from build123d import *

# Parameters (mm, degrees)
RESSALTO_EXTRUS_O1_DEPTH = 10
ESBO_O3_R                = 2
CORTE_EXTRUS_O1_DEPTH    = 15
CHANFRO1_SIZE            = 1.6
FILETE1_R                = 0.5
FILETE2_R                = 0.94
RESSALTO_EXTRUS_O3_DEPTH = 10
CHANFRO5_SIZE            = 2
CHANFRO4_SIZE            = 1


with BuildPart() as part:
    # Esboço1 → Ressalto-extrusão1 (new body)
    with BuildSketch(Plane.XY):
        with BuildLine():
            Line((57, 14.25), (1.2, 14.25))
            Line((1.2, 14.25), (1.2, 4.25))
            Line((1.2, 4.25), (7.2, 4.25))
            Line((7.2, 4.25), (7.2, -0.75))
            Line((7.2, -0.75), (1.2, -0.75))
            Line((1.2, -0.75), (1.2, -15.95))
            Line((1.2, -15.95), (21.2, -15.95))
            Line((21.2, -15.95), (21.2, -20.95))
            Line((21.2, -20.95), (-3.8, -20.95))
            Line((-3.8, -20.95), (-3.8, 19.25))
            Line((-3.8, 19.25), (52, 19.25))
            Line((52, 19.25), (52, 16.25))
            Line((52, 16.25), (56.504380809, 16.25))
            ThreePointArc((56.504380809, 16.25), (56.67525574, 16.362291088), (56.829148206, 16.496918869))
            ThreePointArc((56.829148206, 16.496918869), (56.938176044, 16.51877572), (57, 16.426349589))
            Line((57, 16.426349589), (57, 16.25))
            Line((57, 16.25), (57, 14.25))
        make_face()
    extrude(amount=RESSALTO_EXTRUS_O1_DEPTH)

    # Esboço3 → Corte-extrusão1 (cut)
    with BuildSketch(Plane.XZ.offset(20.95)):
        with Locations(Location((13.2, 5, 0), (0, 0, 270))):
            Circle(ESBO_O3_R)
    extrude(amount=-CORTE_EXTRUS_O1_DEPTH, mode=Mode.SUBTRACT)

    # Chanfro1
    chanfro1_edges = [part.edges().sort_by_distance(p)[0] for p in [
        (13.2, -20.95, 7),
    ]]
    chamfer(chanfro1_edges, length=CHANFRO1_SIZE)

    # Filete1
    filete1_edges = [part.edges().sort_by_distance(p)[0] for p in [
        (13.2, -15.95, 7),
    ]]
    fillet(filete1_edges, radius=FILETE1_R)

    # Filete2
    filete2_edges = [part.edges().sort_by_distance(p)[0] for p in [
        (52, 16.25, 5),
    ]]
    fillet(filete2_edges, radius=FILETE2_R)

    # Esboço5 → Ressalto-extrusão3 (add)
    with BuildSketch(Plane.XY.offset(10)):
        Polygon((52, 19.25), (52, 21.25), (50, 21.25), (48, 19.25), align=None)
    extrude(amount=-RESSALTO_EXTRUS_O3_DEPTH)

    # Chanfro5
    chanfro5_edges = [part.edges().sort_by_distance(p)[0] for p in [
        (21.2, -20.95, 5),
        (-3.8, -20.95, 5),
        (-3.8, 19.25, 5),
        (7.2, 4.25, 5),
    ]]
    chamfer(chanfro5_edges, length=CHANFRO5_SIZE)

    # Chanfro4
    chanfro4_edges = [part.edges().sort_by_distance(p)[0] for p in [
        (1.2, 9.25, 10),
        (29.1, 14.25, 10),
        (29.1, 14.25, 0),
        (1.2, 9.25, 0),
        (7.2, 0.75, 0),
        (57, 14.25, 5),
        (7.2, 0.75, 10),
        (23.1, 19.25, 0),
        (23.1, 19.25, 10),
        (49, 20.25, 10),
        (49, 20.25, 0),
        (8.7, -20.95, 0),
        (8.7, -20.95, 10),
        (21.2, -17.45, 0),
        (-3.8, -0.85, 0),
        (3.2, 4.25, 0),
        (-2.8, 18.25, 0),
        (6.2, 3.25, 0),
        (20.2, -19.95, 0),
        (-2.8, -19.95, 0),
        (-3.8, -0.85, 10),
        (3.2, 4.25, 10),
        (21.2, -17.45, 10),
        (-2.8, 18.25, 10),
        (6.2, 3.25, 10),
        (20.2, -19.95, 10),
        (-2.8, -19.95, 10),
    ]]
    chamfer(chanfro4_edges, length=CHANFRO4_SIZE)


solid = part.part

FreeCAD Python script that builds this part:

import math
import FreeCAD as App
import Part
import Sketcher
Q = App.Units.Quantity


def edges_at(feature, points):
    """Names of the edges that pass closest to the given points."""
    edges = feature.Shape.Edges
    near = lambda p: min(range(len(edges)), key=lambda i: edges[i].distToShape(Part.Vertex(*p))[0])
    return sorted({f"Edge{near(p) + 1}" for p in points})


def add_polygon(sketch, points):
    """Adds a closed chain of lines whose ends are joined by coincident constraints."""
    first, n = sketch.GeometryCount, len(points)
    for a, b in zip(points, points[1:] + points[:1]):
        sketch.addGeometry(Part.LineSegment(App.Vector(*a, 0), App.Vector(*b, 0)), False)
    for i in range(n):
        sketch.addConstraint(Sketcher.Constraint("Coincident", first + i, 2, first + (i + 1) % n, 1))

doc = App.newDocument("Part")
body = doc.addObject("PartDesign::Body", "Body")

# Sketch on XY plane
sketch1 = body.newObject("Sketcher::SketchObject", "Sketch")
sketch1.AttachmentSupport = (doc.getObject("XY_Plane"), [""])
sketch1.MapMode = "FlatFace"
sketch1.addGeometry(Part.LineSegment(App.Vector(1.2, 14.25, 0), App.Vector(57, 14.25, 0)), False)
sketch1.addGeometry(Part.LineSegment(App.Vector(57, 14.25, 0), App.Vector(57, 16.43, 0)), False)
sketch1.addGeometry(Part.ArcOfCircle(Part.Circle(App.Vector(56.9, 16.43, 0), App.Vector(0, 0, 1), 0.1), math.radians(0), math.radians(135)), False)
sketch1.addGeometry(Part.ArcOfCircle(Part.Circle(App.Vector(55.77, 17.55, 0), App.Vector(0, 0, 1), 1.49), math.radians(-60.62), math.radians(-44.89)), False)
sketch1.addGeometry(Part.LineSegment(App.Vector(56.5, 16.25, 0), App.Vector(52, 16.25, 0)), False)
sketch1.addGeometry(Part.LineSegment(App.Vector(52, 16.25, 0), App.Vector(52, 19.25, 0)), False)
sketch1.addGeometry(Part.LineSegment(App.Vector(52, 19.25, 0), App.Vector(-3.8, 19.25, 0)), False)
sketch1.addGeometry(Part.LineSegment(App.Vector(-3.8, 19.25, 0), App.Vector(-3.8, -20.95, 0)), False)
sketch1.addGeometry(Part.LineSegment(App.Vector(-3.8, -20.95, 0), App.Vector(21.2, -20.95, 0)), False)
sketch1.addGeometry(Part.LineSegment(App.Vector(21.2, -20.95, 0), App.Vector(21.2, -15.95, 0)), False)
sketch1.addGeometry(Part.LineSegment(App.Vector(21.2, -15.95, 0), App.Vector(1.2, -15.95, 0)), False)
sketch1.addGeometry(Part.LineSegment(App.Vector(1.2, -15.95, 0), App.Vector(1.2, -0.75, 0)), False)
sketch1.addGeometry(Part.LineSegment(App.Vector(1.2, -0.75, 0), App.Vector(7.2, -0.75, 0)), False)
sketch1.addGeometry(Part.LineSegment(App.Vector(7.2, -0.75, 0), App.Vector(7.2, 4.25, 0)), False)
sketch1.addGeometry(Part.LineSegment(App.Vector(7.2, 4.25, 0), App.Vector(1.2, 4.25, 0)), False)
sketch1.addGeometry(Part.LineSegment(App.Vector(1.2, 4.25, 0), App.Vector(1.2, 14.25, 0)), False)
sketch1.addConstraint(Sketcher.Constraint("Coincident", 0, 2, 1, 1))
sketch1.addConstraint(Sketcher.Constraint("Tangent", 1, 2, 2, 1))
sketch1.addConstraint(Sketcher.Constraint("Tangent", 2, 2, 3, 2))
sketch1.addConstraint(Sketcher.Constraint("Coincident", 3, 1, 4, 1))
sketch1.addConstraint(Sketcher.Constraint("Coincident", 4, 2, 5, 1))
sketch1.addConstraint(Sketcher.Constraint("Coincident", 5, 2, 6, 1))
sketch1.addConstraint(Sketcher.Constraint("Coincident", 6, 2, 7, 1))
sketch1.addConstraint(Sketcher.Constraint("Coincident", 7, 2, 8, 1))
sketch1.addConstraint(Sketcher.Constraint("Coincident", 8, 2, 9, 1))
sketch1.addConstraint(Sketcher.Constraint("Coincident", 9, 2, 10, 1))
sketch1.addConstraint(Sketcher.Constraint("Coincident", 10, 2, 11, 1))
sketch1.addConstraint(Sketcher.Constraint("Coincident", 11, 2, 12, 1))
sketch1.addConstraint(Sketcher.Constraint("Coincident", 12, 2, 13, 1))
sketch1.addConstraint(Sketcher.Constraint("Coincident", 13, 2, 14, 1))
sketch1.addConstraint(Sketcher.Constraint("Coincident", 14, 2, 15, 1))
sketch1.addConstraint(Sketcher.Constraint("Coincident", 15, 2, 0, 1))
sketch1.addConstraint(Sketcher.Constraint("Horizontal", 0))
sketch1.addConstraint(Sketcher.Constraint("Vertical", 1))
sketch1.addConstraint(Sketcher.Constraint("Horizontal", 4))
sketch1.addConstraint(Sketcher.Constraint("Vertical", 5))
sketch1.addConstraint(Sketcher.Constraint("Horizontal", 6))
sketch1.addConstraint(Sketcher.Constraint("Vertical", 7))
sketch1.addConstraint(Sketcher.Constraint("Horizontal", 8))
sketch1.addConstraint(Sketcher.Constraint("Vertical", 9))
sketch1.addConstraint(Sketcher.Constraint("Horizontal", 10))
sketch1.addConstraint(Sketcher.Constraint("Vertical", 11))
sketch1.addConstraint(Sketcher.Constraint("Horizontal", 12))
sketch1.addConstraint(Sketcher.Constraint("Vertical", 13))
sketch1.addConstraint(Sketcher.Constraint("Horizontal", 14))
sketch1.addConstraint(Sketcher.Constraint("Vertical", 15))
sketch1.addConstraint(Sketcher.Constraint("Vertical", 11, 2, 14, 2))
sketch1.addConstraint(Sketcher.Constraint("Equal", 0, 6))
sketch1.addConstraint(Sketcher.Constraint("Equal", 9, 13))
sketch1.addConstraint(Sketcher.Constraint("Radius", 2, Q("0.1 mm")))
sketch1.addConstraint(Sketcher.Constraint("DistanceX", 8, 1, 8, 2, Q("25 mm")))
sketch1.addConstraint(Sketcher.Constraint("DistanceX", 10, 2, 10, 1, Q("20 mm")))
sketch1.addConstraint(Sketcher.Constraint("DistanceX", 12, 1, 12, 2, Q("6 mm")))
sketch1.addConstraint(Sketcher.Constraint("DistanceY", 5, 1, 5, 2, Q("3 mm")))
sketch1.addConstraint(Sketcher.Constraint("DistanceY", 9, 1, 9, 2, Q("5 mm")))
sketch1.addConstraint(Sketcher.Constraint("DistanceY", 15, 1, 15, 2, Q("10 mm")))
sketch1.addConstraint(Sketcher.Constraint("DistanceX", 0, 1, 0, 2, Q("55.8 mm")))
sketch1.addConstraint(Sketcher.Constraint("DistanceY", 7, 2, 7, 1, Q("40.2 mm")))
sketch1.addConstraint(Sketcher.Constraint("DistanceY", 11, 1, 11, 2, Q("15.2 mm")))
sketch1.addConstraint(Sketcher.Constraint("DistanceX", -1, 1, 0, 2, Q("57 mm")))
sketch1.addConstraint(Sketcher.Constraint("DistanceY", -1, 1, 0, 2, Q("14.25 mm")))
sketch1.addConstraint(Sketcher.Constraint("Radius", 3, Q("1.489963 mm")))
sketch1.addConstraint(Sketcher.Constraint("DistanceX", 4, 2, 4, 1, Q("4.504381 mm")))
sketch1.addConstraint(Sketcher.Constraint("DistanceY", 1, 1, 1, 2, Q("2.17635 mm")))
pad1 = body.newObject("PartDesign::Pad", "Pad")
pad1.Profile = sketch1
pad1.Length = 10

# Sketch on XZ plane
sketch2 = body.newObject("Sketcher::SketchObject", "Sketch001")
sketch2.AttachmentSupport = (doc.getObject("XZ_Plane"), [""])
sketch2.MapMode = "FlatFace"
sketch2.AttachmentOffset = App.Placement(App.Vector(0, 0, 20.95), App.Rotation())
sketch2.addGeometry(Part.Circle(App.Vector(13.2, 5, 0), App.Vector(0, 0, 1), 2), False)
sketch2.addConstraint(Sketcher.Constraint("Diameter", 0, Q("4 mm")))
sketch2.addConstraint(Sketcher.Constraint("DistanceY", -1, 1, 0, 3, Q("5 mm")))
sketch2.addConstraint(Sketcher.Constraint("DistanceX", -1, 1, 0, 3, Q("13.2 mm")))
pocket1 = body.newObject("PartDesign::Pocket", "Pocket")
pocket1.Profile = sketch2
pocket1.Length = 15
doc.recompute()

chamfer = body.newObject("PartDesign::Chamfer", "Chamfer")
chamfer.Base = (pocket1, edges_at(pocket1, [(13.2, -20.95, 7)]))
chamfer.Size = 1.6
doc.recompute()

fillet = body.newObject("PartDesign::Fillet", "Fillet")
fillet.Base = (chamfer, edges_at(chamfer, [(13.2, -15.95, 7)]))
fillet.Radius = 0.5
doc.recompute()

fillet2 = body.newObject("PartDesign::Fillet", "Fillet001")
fillet2.Base = (fillet, edges_at(fillet, [(52, 16.25, 5)]))
fillet2.Radius = 0.94

# Sketch on XY plane
sketch3 = body.newObject("Sketcher::SketchObject", "Sketch002")
sketch3.AttachmentSupport = (doc.getObject("XY_Plane"), [""])
sketch3.MapMode = "FlatFace"
sketch3.AttachmentOffset = App.Placement(App.Vector(0, 0, 10), App.Rotation())
add_polygon(sketch3, [(52, 19.2), (52, 21.2), (50, 21.2), (48, 19.2)])  # lines 0-3
sketch3.addConstraint(Sketcher.Constraint("Vertical", 0))
sketch3.addConstraint(Sketcher.Constraint("Horizontal", 1))
sketch3.addConstraint(Sketcher.Constraint("Horizontal", 3))
sketch3.addConstraint(Sketcher.Constraint("Equal", 1, 0))
sketch3.addConstraint(Sketcher.Constraint("DistanceX", 1, 2, 1, 1, Q("2 mm")))
sketch3.addConstraint(Sketcher.Constraint("DistanceX", 3, 1, 3, 2, Q("4 mm")))
sketch3.addConstraint(Sketcher.Constraint("DistanceX", -1, 1, 0, 2, Q("52 mm")))
sketch3.addConstraint(Sketcher.Constraint("DistanceY", -1, 1, 0, 2, Q("21.25 mm")))
pad2 = body.newObject("PartDesign::Pad", "Pad001")
pad2.Profile = sketch3
pad2.Length = 10
pad2.Reversed = True
doc.recompute()

chamfer2 = body.newObject("PartDesign::Chamfer", "Chamfer001")
chamfer2.Base = (pad2, edges_at(pad2, [
    (21.2, -20.95, 5),
    (-3.8, -20.95, 5),
    (-3.8, 19.25, 5),
    (7.2, 4.25, 5),
]))
chamfer2.Size = 2
doc.recompute()

chamfer3 = body.newObject("PartDesign::Chamfer", "Chamfer002")
chamfer3.Base = (chamfer2, edges_at(chamfer2, [
    (1.2, 9.25, 10),
    (29.1, 14.25, 10),
    (29.1, 14.25, 0),
    (1.2, 9.25, 0),
    (7.2, 0.75, 0),
    (57, 14.25, 5),
    (7.2, 0.75, 10),
    (23.1, 19.25, 0),
    (23.1, 19.25, 10),
    (49, 20.25, 10),
    (49, 20.25, 0),
    (8.7, -20.95, 0),
    (8.7, -20.95, 10),
    (21.2, -17.45, 0),
    (-3.8, -0.85, 0),
    (3.2, 4.25, 0),
    (-2.8, 18.25, 0),
    (6.2, 3.25, 0),
    (20.2, -19.95, 0),
    (-2.8, -19.95, 0),
    (-3.8, -0.85, 10),
    (3.2, 4.25, 10),
    (21.2, -17.45, 10),
    (-2.8, 18.25, 10),
    (6.2, 3.25, 10),
    (20.2, -19.95, 10),
    (-2.8, -19.95, 10),
]))
chamfer3.Size = 1

doc.recompute()
